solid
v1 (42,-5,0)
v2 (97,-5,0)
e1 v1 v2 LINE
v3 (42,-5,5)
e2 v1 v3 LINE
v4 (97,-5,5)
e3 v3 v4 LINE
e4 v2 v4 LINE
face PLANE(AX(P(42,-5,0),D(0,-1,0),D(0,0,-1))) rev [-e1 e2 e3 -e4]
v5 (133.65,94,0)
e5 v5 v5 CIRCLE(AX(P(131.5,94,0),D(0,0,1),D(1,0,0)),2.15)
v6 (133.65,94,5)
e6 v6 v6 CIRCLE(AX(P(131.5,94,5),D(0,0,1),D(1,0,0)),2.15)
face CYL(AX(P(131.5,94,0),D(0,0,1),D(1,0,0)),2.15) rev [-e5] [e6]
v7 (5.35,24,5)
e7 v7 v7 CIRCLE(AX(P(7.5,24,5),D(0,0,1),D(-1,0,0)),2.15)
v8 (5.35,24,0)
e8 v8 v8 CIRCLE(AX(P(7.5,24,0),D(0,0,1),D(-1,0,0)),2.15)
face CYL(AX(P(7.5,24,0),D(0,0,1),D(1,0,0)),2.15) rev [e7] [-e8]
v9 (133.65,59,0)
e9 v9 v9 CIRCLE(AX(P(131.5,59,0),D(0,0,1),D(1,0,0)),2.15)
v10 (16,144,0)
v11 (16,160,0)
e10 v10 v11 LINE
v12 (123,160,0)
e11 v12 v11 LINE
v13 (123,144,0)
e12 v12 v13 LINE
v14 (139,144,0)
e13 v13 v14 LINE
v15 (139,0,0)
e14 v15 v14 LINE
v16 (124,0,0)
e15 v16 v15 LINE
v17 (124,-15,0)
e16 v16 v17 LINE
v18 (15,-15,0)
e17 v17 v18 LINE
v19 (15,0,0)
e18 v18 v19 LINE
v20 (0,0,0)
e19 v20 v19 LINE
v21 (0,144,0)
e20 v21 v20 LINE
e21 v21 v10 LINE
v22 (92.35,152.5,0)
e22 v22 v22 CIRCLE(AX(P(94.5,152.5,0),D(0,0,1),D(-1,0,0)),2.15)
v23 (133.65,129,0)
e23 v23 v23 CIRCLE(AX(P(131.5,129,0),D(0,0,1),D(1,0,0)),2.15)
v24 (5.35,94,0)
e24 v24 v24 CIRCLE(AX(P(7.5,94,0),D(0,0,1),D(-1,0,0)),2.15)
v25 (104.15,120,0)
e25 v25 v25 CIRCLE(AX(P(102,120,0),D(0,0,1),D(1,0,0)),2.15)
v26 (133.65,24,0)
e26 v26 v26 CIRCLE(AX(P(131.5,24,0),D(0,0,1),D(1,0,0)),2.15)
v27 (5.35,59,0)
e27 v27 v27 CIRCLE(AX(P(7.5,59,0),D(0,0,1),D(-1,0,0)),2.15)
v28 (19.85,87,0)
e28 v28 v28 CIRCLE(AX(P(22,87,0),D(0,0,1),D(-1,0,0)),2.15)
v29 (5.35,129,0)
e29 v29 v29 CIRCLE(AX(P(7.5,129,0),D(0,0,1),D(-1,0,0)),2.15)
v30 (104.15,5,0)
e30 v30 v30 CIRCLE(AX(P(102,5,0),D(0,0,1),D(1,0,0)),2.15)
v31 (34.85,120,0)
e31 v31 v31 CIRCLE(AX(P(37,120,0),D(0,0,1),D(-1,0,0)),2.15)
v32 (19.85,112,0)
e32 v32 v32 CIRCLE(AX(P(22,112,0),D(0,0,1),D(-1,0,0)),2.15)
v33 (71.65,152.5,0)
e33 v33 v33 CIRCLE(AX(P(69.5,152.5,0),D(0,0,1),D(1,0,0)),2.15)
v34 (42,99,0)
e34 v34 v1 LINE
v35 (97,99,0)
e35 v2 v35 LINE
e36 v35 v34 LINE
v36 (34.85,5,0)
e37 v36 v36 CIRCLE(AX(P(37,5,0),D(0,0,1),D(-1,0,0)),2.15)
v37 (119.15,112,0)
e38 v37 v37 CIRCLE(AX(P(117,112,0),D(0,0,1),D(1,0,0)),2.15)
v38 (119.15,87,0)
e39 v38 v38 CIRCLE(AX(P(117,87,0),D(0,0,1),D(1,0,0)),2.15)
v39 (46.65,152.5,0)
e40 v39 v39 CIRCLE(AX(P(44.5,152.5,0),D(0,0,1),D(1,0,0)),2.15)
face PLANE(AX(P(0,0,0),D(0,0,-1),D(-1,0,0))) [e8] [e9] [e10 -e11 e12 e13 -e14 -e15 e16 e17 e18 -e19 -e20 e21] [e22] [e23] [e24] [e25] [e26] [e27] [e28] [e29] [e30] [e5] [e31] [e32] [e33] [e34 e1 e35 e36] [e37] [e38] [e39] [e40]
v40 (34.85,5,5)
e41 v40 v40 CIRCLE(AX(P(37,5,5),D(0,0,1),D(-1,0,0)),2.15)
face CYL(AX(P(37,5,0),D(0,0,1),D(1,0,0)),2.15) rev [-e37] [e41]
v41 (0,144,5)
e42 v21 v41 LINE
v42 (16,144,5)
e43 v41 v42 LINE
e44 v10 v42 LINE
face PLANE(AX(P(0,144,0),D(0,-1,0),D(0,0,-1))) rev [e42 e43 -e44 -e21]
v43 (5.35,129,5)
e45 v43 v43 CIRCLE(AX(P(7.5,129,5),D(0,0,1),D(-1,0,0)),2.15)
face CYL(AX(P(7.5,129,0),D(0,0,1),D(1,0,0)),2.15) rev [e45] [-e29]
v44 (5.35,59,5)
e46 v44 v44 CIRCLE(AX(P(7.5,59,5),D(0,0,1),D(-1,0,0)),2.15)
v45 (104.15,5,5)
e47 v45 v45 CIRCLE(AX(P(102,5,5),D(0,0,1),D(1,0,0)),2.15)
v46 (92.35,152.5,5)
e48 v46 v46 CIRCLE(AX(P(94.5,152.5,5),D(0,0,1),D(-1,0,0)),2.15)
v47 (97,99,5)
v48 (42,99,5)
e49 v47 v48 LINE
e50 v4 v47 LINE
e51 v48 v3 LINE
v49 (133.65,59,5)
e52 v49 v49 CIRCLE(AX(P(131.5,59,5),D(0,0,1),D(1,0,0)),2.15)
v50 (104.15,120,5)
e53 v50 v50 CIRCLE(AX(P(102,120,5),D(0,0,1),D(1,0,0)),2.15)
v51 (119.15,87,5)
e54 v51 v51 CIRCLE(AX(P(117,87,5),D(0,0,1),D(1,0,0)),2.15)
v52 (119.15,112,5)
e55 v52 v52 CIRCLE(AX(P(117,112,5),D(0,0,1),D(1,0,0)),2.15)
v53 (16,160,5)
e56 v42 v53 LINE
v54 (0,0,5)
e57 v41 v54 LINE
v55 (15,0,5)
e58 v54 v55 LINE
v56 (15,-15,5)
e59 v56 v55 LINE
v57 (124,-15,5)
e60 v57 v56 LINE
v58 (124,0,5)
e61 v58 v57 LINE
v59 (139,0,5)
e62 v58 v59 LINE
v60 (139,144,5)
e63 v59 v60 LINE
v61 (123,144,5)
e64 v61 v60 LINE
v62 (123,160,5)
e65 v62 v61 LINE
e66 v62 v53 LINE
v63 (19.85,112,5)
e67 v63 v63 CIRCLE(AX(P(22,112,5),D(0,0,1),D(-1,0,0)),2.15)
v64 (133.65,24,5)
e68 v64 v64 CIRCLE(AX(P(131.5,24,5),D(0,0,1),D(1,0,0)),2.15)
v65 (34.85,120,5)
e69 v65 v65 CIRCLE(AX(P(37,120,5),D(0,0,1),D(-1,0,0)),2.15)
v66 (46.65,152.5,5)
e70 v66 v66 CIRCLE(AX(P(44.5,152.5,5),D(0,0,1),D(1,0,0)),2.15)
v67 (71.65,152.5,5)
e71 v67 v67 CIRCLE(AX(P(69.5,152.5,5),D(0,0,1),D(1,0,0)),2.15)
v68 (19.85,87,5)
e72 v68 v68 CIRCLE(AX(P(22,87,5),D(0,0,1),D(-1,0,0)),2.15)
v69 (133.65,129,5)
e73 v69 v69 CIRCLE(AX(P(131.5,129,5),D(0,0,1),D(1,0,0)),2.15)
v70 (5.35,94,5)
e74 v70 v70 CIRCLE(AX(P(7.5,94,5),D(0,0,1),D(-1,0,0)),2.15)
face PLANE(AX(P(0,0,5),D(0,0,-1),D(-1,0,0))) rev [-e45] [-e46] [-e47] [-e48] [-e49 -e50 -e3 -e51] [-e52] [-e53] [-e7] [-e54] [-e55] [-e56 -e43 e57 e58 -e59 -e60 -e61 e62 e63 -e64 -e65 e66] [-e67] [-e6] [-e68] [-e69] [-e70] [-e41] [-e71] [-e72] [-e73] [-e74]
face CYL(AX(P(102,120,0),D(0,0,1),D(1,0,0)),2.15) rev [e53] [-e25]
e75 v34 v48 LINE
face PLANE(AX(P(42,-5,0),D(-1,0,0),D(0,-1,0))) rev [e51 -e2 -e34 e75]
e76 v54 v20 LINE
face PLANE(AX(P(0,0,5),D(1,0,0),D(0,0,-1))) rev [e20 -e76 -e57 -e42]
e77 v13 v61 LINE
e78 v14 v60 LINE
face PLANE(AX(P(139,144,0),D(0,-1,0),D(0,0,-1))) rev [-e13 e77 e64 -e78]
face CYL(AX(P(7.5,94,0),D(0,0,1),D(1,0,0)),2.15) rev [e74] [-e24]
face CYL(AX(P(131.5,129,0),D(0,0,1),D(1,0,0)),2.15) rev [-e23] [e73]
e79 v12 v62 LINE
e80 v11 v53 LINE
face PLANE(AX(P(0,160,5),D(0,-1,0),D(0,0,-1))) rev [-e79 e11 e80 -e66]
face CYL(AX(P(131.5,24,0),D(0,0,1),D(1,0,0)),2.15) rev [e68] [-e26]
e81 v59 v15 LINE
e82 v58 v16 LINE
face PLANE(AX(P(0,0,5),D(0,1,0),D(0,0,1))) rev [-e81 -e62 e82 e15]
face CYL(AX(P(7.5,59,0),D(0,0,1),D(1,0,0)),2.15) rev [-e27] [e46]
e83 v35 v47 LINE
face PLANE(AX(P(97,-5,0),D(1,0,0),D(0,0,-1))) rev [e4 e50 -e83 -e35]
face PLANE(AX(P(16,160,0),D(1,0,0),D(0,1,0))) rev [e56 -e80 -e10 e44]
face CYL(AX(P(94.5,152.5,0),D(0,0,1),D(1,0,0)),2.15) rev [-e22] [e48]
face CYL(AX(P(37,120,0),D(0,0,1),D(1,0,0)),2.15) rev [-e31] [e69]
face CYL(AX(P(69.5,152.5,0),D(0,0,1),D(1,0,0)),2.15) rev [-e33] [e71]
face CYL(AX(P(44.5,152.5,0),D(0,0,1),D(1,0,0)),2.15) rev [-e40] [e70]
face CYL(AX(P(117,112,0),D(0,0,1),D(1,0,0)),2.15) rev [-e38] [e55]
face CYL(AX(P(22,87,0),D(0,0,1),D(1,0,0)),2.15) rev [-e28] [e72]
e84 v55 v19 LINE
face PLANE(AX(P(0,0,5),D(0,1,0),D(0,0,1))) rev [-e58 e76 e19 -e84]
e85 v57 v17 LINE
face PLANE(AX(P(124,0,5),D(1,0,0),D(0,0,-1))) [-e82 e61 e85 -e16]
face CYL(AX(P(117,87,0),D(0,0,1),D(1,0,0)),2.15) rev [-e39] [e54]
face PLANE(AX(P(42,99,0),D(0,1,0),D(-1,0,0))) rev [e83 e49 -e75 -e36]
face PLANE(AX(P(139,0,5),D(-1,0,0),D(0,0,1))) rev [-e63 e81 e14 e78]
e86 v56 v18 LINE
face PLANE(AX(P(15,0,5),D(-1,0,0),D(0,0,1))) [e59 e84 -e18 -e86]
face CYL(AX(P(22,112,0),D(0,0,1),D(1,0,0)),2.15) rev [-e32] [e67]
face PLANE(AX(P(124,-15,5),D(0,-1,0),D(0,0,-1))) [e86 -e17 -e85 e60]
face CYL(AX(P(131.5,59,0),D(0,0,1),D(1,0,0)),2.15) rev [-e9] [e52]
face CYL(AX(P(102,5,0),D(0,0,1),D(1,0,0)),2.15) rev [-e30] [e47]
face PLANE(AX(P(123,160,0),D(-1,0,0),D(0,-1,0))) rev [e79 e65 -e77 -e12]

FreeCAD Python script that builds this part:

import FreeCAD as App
import Part
import Sketcher
Q = App.Units.Quantity

doc = App.newDocument("Part")
body = doc.addObject("PartDesign::Body", "Body")

# Sketch on XY plane
sketch1 = doc.addObject("Sketcher::SketchObject", "Sketch")
body.addObject(sketch1)
sketch1.AttachmentSupport = (doc.XY_Plane, [""])
sketch1.MapMode = "FlatFace"
sketch1.addGeometry([
    Part.LineSegment(App.Vector(0, 160, 0), App.Vector(0, 0, 0)),
    Part.LineSegment(App.Vector(0, 0, 0), App.Vector(139, 0, 0)),
    Part.LineSegment(App.Vector(139, 0, 0), App.Vector(139, 160, 0)),
    Part.LineSegment(App.Vector(139, 160, 0), App.Vector(0, 160, 0)),
], False)
sketch1.addConstraint([
    Sketcher.Constraint("Coincident", 0, 2, 1, 1),
    Sketcher.Constraint("Coincident", 1, 2, 2, 1),
    Sketcher.Constraint("Coincident", 2, 2, 3, 1),
    Sketcher.Constraint("Coincident", 3, 2, 0, 1),
    Sketcher.Constraint("Vertical", 0),
    Sketcher.Constraint("Horizontal", 1),
    Sketcher.Constraint("Vertical", 2),
    Sketcher.Constraint("Horizontal", 3),
    Sketcher.Constraint("Coincident", 0, 2, -1, 1),
    Sketcher.Constraint("DistanceX", 1, 1, 1, 2, Q("139 mm")),
    Sketcher.Constraint("DistanceY", 0, 2, 0, 1, Q("160 mm")),
])
pad1 = doc.addObject("PartDesign::Pad", "Pad")
body.addObject(pad1)
pad1.Profile = sketch1
pad1.Length = 5

# Sketch on XY plane
sketch2 = doc.addObject("Sketcher::SketchObject", "Sketch001")
body.addObject(sketch2)
sketch2.AttachmentSupport = (doc.XY_Plane, [""])
sketch2.MapMode = "FlatFace"
sketch2.AttachmentOffset = App.Placement(App.Vector(0, 0, 5), App.Rotation())
sketch2.addGeometry([
    Part.LineSegment(App.Vector(123, 160, 0), App.Vector(123, 144, 0)),  # 0
    Part.LineSegment(App.Vector(123, 144, 0), App.Vector(139, 144, 0)),  # 1
    Part.LineSegment(App.Vector(139, 144, 0), App.Vector(139, 160, 0)),  # 2
    Part.LineSegment(App.Vector(139, 160, 0), App.Vector(123, 160, 0)),  # 3
    Part.LineSegment(App.Vector(0, 160, 0), App.Vector(0, 144, 0)),  # 4
    Part.LineSegment(App.Vector(0, 144, 0), App.Vector(16, 144, 0)),  # 5
    Part.LineSegment(App.Vector(16, 144, 0), App.Vector(16, 160, 0)),  # 6
    Part.LineSegment(App.Vector(16, 160, 0), App.Vector(0, 160, 0)),  # 7
], False)
sketch2.addConstraint([
    Sketcher.Constraint("Coincident", 0, 2, 1, 1),
    Sketcher.Constraint("Coincident", 1, 2, 2, 1),
    Sketcher.Constraint("Coincident", 2, 2, 3, 1),
    Sketcher.Constraint("Coincident", 3, 2, 0, 1),
    Sketcher.Constraint("Coincident", 4, 2, 5, 1),
    Sketcher.Constraint("Coincident", 5, 2, 6, 1),
    Sketcher.Constraint("Coincident", 6, 2, 7, 1),
    Sketcher.Constraint("Coincident", 7, 2, 4, 1),
    Sketcher.Constraint("Vertical", 0),
    Sketcher.Constraint("Horizontal", 1),
    Sketcher.Constraint("Vertical", 2),
    Sketcher.Constraint("Horizontal", 3),
    Sketcher.Constraint("Vertical", 4),
    Sketcher.Constraint("Horizontal", 5),
    Sketcher.Constraint("Vertical", 6),
    Sketcher.Constraint("Horizontal", 7),
    Sketcher.Constraint("PointOnObject", 4, 2, -2),
    Sketcher.Constraint("Horizontal", 1, 2, 4, 2),
    Sketcher.Constraint("Horizontal", 3, 2, 6, 2),
    Sketcher.Constraint("Equal", 3, 5),
    Sketcher.Constraint("Equal", 7, 0),
    Sketcher.Constraint("DistanceX", 1, 1, 1, 2, Q("16 mm")),
    Sketcher.Constraint("DistanceX", -1, 1, 0, 2, Q("123 mm")),
    Sketcher.Constraint("DistanceY", -1, 1, 0, 2, Q("144 mm")),
])
pocket1 = doc.addObject("PartDesign::Pocket", "Pocket")
body.addObject(pocket1)
pocket1.Profile = sketch2
pocket1.Length = 5

# Sketch on XY plane
sketch3 = doc.addObject("Sketcher::SketchObject", "Sketch002")
body.addObject(sketch3)
sketch3.AttachmentSupport = (doc.XY_Plane, [""])
sketch3.MapMode = "FlatFace"
sketch3.AttachmentOffset = App.Placement(App.Vector(0, 0, 5), App.Rotation())
sketch3.addGeometry([
    Part.Circle(App.Vector(69.5, 152.5, 0), App.Vector(0, 0, 1), 2.15),
    Part.Circle(App.Vector(44.5, 152.5, 0), App.Vector(0, 0, 1), 2.15),
    Part.Circle(App.Vector(94.5, 152.5, 0), App.Vector(0, 0, 1), 2.15),
], False)
sketch3.addConstraint([
    Sketcher.Constraint("Equal", 0, 1),
    Sketcher.Constraint("Equal", 1, 2),
    Sketcher.Constraint("Horizontal", 0, 3, 1, 3),
    Sketcher.Constraint("Horizontal", 1, 3, 2, 3),
    Sketcher.Constraint("Diameter", 0, Q("4.3 mm")),
    Sketcher.Constraint("DistanceX", 1, 3, 0, 3, Q("25 mm")),
    Sketcher.Constraint("DistanceX", 0, 3, 2, 3, Q("25 mm")),
    Sketcher.Constraint("DistanceX", -1, 1, 0, 3, Q("69.5 mm")),
    Sketcher.Constraint("DistanceY", -1, 1, 0, 3, Q("152.5 mm")),
])
pocket2 = doc.addObject("PartDesign::Pocket", "Pocket001")
body.addObject(pocket2)
pocket2.Profile = sketch3
pocket2.Length = 5

# Sketch on XY plane
sketch4 = doc.addObject("Sketcher::SketchObject", "Sketch003")
body.addObject(sketch4)
sketch4.AttachmentSupport = (doc.XY_Plane, [""])
sketch4.MapMode = "FlatFace"
sketch4.AttachmentOffset = App.Placement(App.Vector(0, 0, 5), App.Rotation())
sketch4.addGeometry([
    Part.Circle(App.Vector(131.5, 129, 0), App.Vector(0, 0, 1), 2.15),
    Part.Circle(App.Vector(7.5, 129, 0), App.Vector(0, 0, 1), 2.15),
], False)
sketch4.addConstraint([
    Sketcher.Constraint("Equal", 0, 1),
    Sketcher.Constraint("Horizontal", 0, 3, 1, 3),
    Sketcher.Constraint("Diameter", 0, Q("4.3 mm")),
    Sketcher.Constraint("DistanceY", -1, 1, 0, 3, Q("129 mm")),
    Sketcher.Constraint("DistanceX", 1, 3, 0, 3, Q("124 mm")),
    Sketcher.Constraint("DistanceX", -1, 1, 0, 3, Q("131.5 mm")),
])
pocket3 = doc.addObject("PartDesign::Pocket", "Pocket002")
body.addObject(pocket3)
pocket3.Profile = sketch4
pocket3.Length = 5
doc.recompute()

linearpattern = doc.addObject("PartDesign::LinearPattern", "LinearPattern")
body.addObject(linearpattern)
linearpattern.Originals = [pocket3]
linearpattern.Direction = (doc.Y_Axis, [""])
linearpattern.Mode = "offset"
linearpattern.Offset = 35
linearpattern.Occurrences = 4
linearpattern.Reversed = True
body.Tip = linearpattern

# Sketch on XY plane
sketch5 = doc.addObject("Sketcher::SketchObject", "Sketch004")
body.addObject(sketch5)
sketch5.AttachmentSupport = (doc.XY_Plane, [""])
sketch5.MapMode = "FlatFace"
sketch5.AttachmentOffset = App.Placement(App.Vector(0, 0, 5), App.Rotation())
sketch5.addGeometry([
    Part.Circle(App.Vector(117, 112, 0), App.Vector(0, 0, 1), 2.15),
    Part.Circle(App.Vector(117, 87, 0), App.Vector(0, 0, 1), 2.15),
    Part.Circle(App.Vector(22, 87, 0), App.Vector(0, 0, 1), 2.15),
    Part.Circle(App.Vector(22, 112, 0), App.Vector(0, 0, 1), 2.15),
], False)
sketch5.addConstraint([
    Sketcher.Constraint("Equal", 0, 1),
    Sketcher.Constraint("Equal", 1, 2),
    Sketcher.Constraint("Equal", 2, 3),
    Sketcher.Constraint("Horizontal", 1, 3, 2, 3),
    Sketcher.Constraint("Horizontal", 0, 3, 3, 3),
    Sketcher.Constraint("Vertical", 0, 3, 1, 3),
    Sketcher.Constraint("Vertical", 2, 3, 3, 3),
    Sketcher.Constraint("Diameter", 0, Q("4.3 mm")),
    Sketcher.Constraint("DistanceX", -1, 1, 0, 3, Q("117 mm")),
    Sketcher.Constraint("DistanceY", -1, 1, 0, 3, Q("112 mm")),
    Sketcher.Constraint("DistanceY", -1, 1, 1, 3, Q("87 mm")),
    Sketcher.Constraint("DistanceX", -1, 1, 2, 3, Q("22 mm")),
])
pocket4 = doc.addObject("PartDesign::Pocket", "Pocket003")
body.addObject(pocket4)
pocket4.Profile = sketch5
pocket4.Length = 5

# Sketch on XY plane
sketch6 = doc.addObject("Sketcher::SketchObject", "Sketch005")
body.addObject(sketch6)
sketch6.AttachmentSupport = (doc.XY_Plane, [""])
sketch6.MapMode = "FlatFace"
sketch6.addGeometry([
    Part.LineSegment(App.Vector(124, 0, 0), App.Vector(124, -15, 0)),
    Part.LineSegment(App.Vector(124, -15, 0), App.Vector(15, -15, 0)),
    Part.LineSegment(App.Vector(15, -15, 0), App.Vector(15, 0, 0)),
    Part.LineSegment(App.Vector(15, 0, 0), App.Vector(124, 0, 0)),
], False)
sketch6.addConstraint([
    Sketcher.Constraint("Coincident", 0, 2, 1, 1),
    Sketcher.Constraint("Coincident", 1, 2, 2, 1),
    Sketcher.Constraint("Coincident", 2, 2, 3, 1),
    Sketcher.Constraint("Coincident", 3, 2, 0, 1),
    Sketcher.Constraint("Vertical", 0),
    Sketcher.Constraint("Horizontal", 1),
    Sketcher.Constraint("Vertical", 2),
    Sketcher.Constraint("Horizontal", 3),
    Sketcher.Constraint("PointOnObject", 2, 2, -1),
    Sketcher.Constraint("DistanceX", 1, 2, 1, 1, Q("109 mm")),
    Sketcher.Constraint("DistanceY", 0, 2, 0, 1, Q("15 mm")),
    Sketcher.Constraint("DistanceX", -1, 1, 0, 2, Q("124 mm")),
])
pad2 = doc.addObject("PartDesign::Pad", "Pad001")
body.addObject(pad2)
pad2.Profile = sketch6
pad2.Length = 5

# Sketch on XY plane
sketch7 = doc.addObject("Sketcher::SketchObject", "Sketch006")
body.addObject(sketch7)
sketch7.AttachmentSupport = (doc.XY_Plane, [""])
sketch7.MapMode = "FlatFace"
sketch7.AttachmentOffset = App.Placement(App.Vector(0, 0, 5), App.Rotation())
sketch7.addGeometry([
    Part.LineSegment(App.Vector(42, 99, 0), App.Vector(42, -5, 0)),
    Part.LineSegment(App.Vector(42, -5, 0), App.Vector(97, -5, 0)),
    Part.LineSegment(App.Vector(97, -5, 0), App.Vector(97, 99, 0)),
    Part.LineSegment(App.Vector(97, 99, 0), App.Vector(42, 99, 0)),
], False)
sketch7.addConstraint([
    Sketcher.Constraint("Coincident", 0, 2, 1, 1),
    Sketcher.Constraint("Coincident", 1, 2, 2, 1),
    Sketcher.Constraint("Coincident", 2, 2, 3, 1),
    Sketcher.Constraint("Coincident", 3, 2, 0, 1),
    Sketcher.Constraint("Vertical", 0),
    Sketcher.Constraint("Horizontal", 1),
    Sketcher.Constraint("Vertical", 2),
    Sketcher.Constraint("Horizontal", 3),
    Sketcher.Constraint("DistanceX", 1, 1, 1, 2, Q("55 mm")),
    Sketcher.Constraint("DistanceY", 0, 2, 0, 1, Q("104 mm")),
    Sketcher.Constraint("DistanceX", -1, 1, 0, 2, Q("42 mm")),
    Sketcher.Constraint("DistanceY", 0, 2, -1, 1, Q("5 mm")),
])
pocket5 = doc.addObject("PartDesign::Pocket", "Pocket004")
body.addObject(pocket5)
pocket5.Profile = sketch7
pocket5.Length = 5

# Sketch on XY plane
sketch8 = doc.addObject("Sketcher::SketchObject", "Sketch007")
body.addObject(sketch8)
sketch8.AttachmentSupport = (doc.XY_Plane, [""])
sketch8.MapMode = "FlatFace"
sketch8.AttachmentOffset = App.Placement(App.Vector(0, 0, 5), App.Rotation())
sketch8.addGeometry([
    Part.Circle(App.Vector(102, 5, 0), App.Vector(0, 0, 1), 2.15),
    Part.Circle(App.Vector(102, 120, 0), App.Vector(0, 0, 1), 2.15),
    Part.Circle(App.Vector(37, 120, 0), App.Vector(0, 0, 1), 2.15),
    Part.Circle(App.Vector(37, 5, 0), App.Vector(0, 0, 1), 2.15),
], False)
sketch8.addConstraint([
    Sketcher.Constraint("Equal", 0, 1),
    Sketcher.Constraint("Equal", 1, 2),
    Sketcher.Constraint("Equal", 2, 3),
    Sketcher.Constraint("Horizontal", 1, 3, 2, 3),
    Sketcher.Constraint("Horizontal", 0, 3, 3, 3),
    Sketcher.Constraint("Vertical", 0, 3, 1, 3),
    Sketcher.Constraint("Vertical", 2, 3, 3, 3),
    Sketcher.Constraint("Diameter", 0, Q("4.3 mm")),
    Sketcher.Constraint("DistanceX", -1, 1, 0, 3, Q("102 mm")),
    Sketcher.Constraint("DistanceY", -1, 1, 0, 3, Q("5 mm")),
    Sketcher.Constraint("DistanceY", -1, 1, 1, 3, Q("120 mm")),
    Sketcher.Constraint("DistanceX", -1, 1, 2, 3, Q("37 mm")),
])
pocket6 = doc.addObject("PartDesign::Pocket", "Pocket005")
body.addObject(pocket6)
pocket6.Profile = sketch8
pocket6.Length = 5

doc.recompute()
